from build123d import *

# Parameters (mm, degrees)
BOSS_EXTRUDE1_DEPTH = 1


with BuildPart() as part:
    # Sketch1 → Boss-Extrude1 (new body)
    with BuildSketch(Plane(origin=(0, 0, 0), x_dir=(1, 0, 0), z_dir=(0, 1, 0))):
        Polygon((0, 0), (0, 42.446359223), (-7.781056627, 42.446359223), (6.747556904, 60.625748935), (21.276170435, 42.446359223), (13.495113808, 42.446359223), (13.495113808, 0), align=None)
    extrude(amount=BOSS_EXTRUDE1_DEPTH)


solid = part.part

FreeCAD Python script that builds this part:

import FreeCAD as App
import Part
import Sketcher
Q = App.Units.Quantity


def add_polygon(sketch, points):
    """Adds a closed chain of lines whose ends are joined by coincident constraints."""
    first, n = sketch.GeometryCount, len(points)
    for a, b in zip(points, points[1:] + points[:1]):
        sketch.addGeometry(Part.LineSegment(App.Vector(*a, 0), App.Vector(*b, 0)), False)
    for i in range(n):
        sketch.addConstraint(Sketcher.Constraint("Coincident", first + i, 2, first + (i + 1) % n, 1))

doc = App.newDocument("Part")
params = doc.addObject("Spreadsheet::Sheet", "Params")
for row, (alias, value) in enumerate([
    ("pad1_length", "1 mm"),
], start=1):
    params.set(f"A{row}", alias)
    params.set(f"B{row}", "=" + value)
    params.setAlias(f"B{row}", alias)

body = doc.addObject("PartDesign::Body", "Body")

# Sketch on XZ plane
sketch1 = body.newObject("Sketcher::SketchObject", "Sketch")
sketch1.AttachmentSupport = (doc.getObject("XZ_Plane"), [""])
sketch1.MapMode = "FlatFace"
add_polygon(sketch1, [(0, -42.446359), (0, 0), (13.495114, 0), (13.495114, -42.446359), (21.27617, -42.446359), (6.747557, -60.625749), (-7.781057, -42.446359)])  # lines 0-6
sketch1.addConstraint([
    Sketcher.Constraint("Vertical", 0),
    Sketcher.Constraint("Horizontal", 1),
    Sketcher.Constraint("Vertical", 2),
    Sketcher.Constraint("Horizontal", 3),
    Sketcher.Constraint("Horizontal", 6),
    Sketcher.Constraint("Coincident", 0, 2, -1, 1),
    Sketcher.Constraint("Horizontal", 3, 2, 5, 2),
    Sketcher.Constraint("Equal", 3, 6),
    Sketcher.Constraint("Equal", 4, 5),
    Sketcher.Constraint("DistanceY", 0, 1, 0, 2, Q("42.446359 mm")),
    Sketcher.Constraint("DistanceX", 1, 1, 1, 2, Q("13.495114 mm")),
    Sketcher.Constraint("DistanceX", 3, 1, 3, 2, Q("7.781057 mm")),
    Sketcher.Constraint("DistanceY", 4, 2, -1, 1, Q("60.625749 mm")),
])
pad1 = body.newObject("PartDesign::Pad", "Pad")
pad1.Profile = sketch1
pad1.setExpression("Length", "Params.pad1_length")
pad1.Reversed = True

doc.recompute()
